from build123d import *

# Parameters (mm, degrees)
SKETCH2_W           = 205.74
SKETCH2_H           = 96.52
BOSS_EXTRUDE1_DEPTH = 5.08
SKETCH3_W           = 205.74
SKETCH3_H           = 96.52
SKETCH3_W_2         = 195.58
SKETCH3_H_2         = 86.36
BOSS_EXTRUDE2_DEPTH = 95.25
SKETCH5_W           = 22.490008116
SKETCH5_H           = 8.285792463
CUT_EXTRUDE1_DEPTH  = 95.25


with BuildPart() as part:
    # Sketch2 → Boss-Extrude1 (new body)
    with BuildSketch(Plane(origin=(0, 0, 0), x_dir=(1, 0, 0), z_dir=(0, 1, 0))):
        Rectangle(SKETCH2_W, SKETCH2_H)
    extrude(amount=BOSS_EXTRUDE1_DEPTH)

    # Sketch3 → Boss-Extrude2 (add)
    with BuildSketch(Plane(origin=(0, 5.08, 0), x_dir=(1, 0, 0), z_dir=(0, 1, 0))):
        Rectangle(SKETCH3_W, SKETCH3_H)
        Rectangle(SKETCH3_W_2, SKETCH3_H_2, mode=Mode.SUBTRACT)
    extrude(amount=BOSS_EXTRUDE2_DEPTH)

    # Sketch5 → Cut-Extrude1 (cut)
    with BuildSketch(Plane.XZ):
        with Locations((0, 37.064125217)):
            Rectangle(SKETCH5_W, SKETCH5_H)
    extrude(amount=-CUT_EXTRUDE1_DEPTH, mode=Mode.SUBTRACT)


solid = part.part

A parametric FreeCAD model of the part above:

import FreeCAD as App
import Part
import Sketcher

V = App.Vector
Q = App.Units.Quantity


def add_polygon(sketch, points):
    """Adds a closed chain of lines whose ends are joined by coincident constraints."""
    first, n = sketch.GeometryCount, len(points)
    for a, b in zip(points, points[1:] + points[:1]):
        sketch.addGeometry(Part.LineSegment(App.Vector(*a, 0), App.Vector(*b, 0)), False)
    for i in range(n):
        sketch.addConstraint(Sketcher.Constraint("Coincident", first + i, 2, first + (i + 1) % n, 1))

doc = App.newDocument("Part")
params = doc.addObject("Spreadsheet::Sheet", "Params")
for row, (alias, value) in enumerate([
    ("sketch1_width", "8.1 in"),
    ("sketch1_height", "3.8 in"),
    ("pad1_length", "0.2 in"),
    ("sketch2_width", "8.1 in"),
    ("sketch2_width2", "7.7 in"),
    ("sketch2_height", "3.8 in"),
    ("sketch2_height2", "3.4 in"),
    ("pad2_length", "3.75 in"),
    ("pocket1_length", "3.75 in"),
], start=1):
    params.set(f"A{row}", alias)
    params.set(f"B{row}", "=" + value)
    params.setAlias(f"B{row}", alias)

body = doc.addObject("PartDesign::Body", "Body")

# Sketch on XZ plane
sketch1 = body.newObject("Sketcher::SketchObject", "Sketch")
sketch1.AttachmentSupport = (doc.getObject("XZ_Plane"), [""])
sketch1.MapMode = "FlatFace"
add_polygon(sketch1, [(-103, -48), (-103, 48), (103, 48), (103, -48)])  # lines 0-3
sketch1.addConstraint([
    Sketcher.Constraint("Vertical", 0),
    Sketcher.Constraint("Horizontal", 1),
    Sketcher.Constraint("Vertical", 2),
    Sketcher.Constraint("Horizontal", 3),
    Sketcher.Constraint("Symmetric", 0, 2, 2, 2, -1, 1),
    Sketcher.Constraint("DistanceX", 1, 1, 1, 2, Q("8.1 in")),
    Sketcher.Constraint("DistanceY", 0, 1, 0, 2, Q("3.8 in")),
])
sketch1.setExpression("Constraints[9]", "Params.sketch1_width")
sketch1.setExpression("Constraints[10]", "Params.sketch1_height")
pad1 = body.newObject("PartDesign::Pad", "Pad")
pad1.Profile = sketch1
pad1.setExpression("Length", "Params.pad1_length")
pad1.Reversed = True

# Sketch on XZ plane
sketch2 = body.newObject("Sketcher::SketchObject", "Sketch001")
sketch2.AttachmentSupport = (doc.getObject("XZ_Plane"), [""])
sketch2.MapMode = "FlatFace"
sketch2.AttachmentOffset = App.Placement(V(0, 0, -0.2 * 25.4), App.Rotation())
add_polygon(sketch2, [(-103, -48), (-103, 48), (103, 48), (103, -48)])  # lines 0-3
add_polygon(sketch2, [(98, 43), (-98, 43), (-98, -43), (98, -43)])  # lines 4-7
sketch2.addConstraint([
    Sketcher.Constraint("Vertical", 0),
    Sketcher.Constraint("Horizontal", 1),
    Sketcher.Constraint("Vertical", 2),
    Sketcher.Constraint("Horizontal", 3),
    Sketcher.Constraint("Horizontal", 4),
    Sketcher.Constraint("Vertical", 5),
    Sketcher.Constraint("Horizontal", 6),
    Sketcher.Constraint("Vertical", 7),
    Sketcher.Constraint("Symmetric", 0, 2, 2, 2, -1, 1),
    Sketcher.Constraint("Symmetric", 4, 2, 6, 2, -1, 1),
    Sketcher.Constraint("DistanceX", 1, 1, 1, 2, Q("8.1 in")),
    Sketcher.Constraint("DistanceX", 4, 2, 4, 1, Q("7.7 in")),
    Sketcher.Constraint("DistanceY", 0, 1, 0, 2, Q("3.8 in")),
    Sketcher.Constraint("DistanceY", 5, 2, 5, 1, Q("3.4 in")),
])
sketch2.setExpression("Constraints[18]", "Params.sketch2_width")
sketch2.setExpression("Constraints[19]", "Params.sketch2_width2")
sketch2.setExpression("Constraints[20]", "Params.sketch2_height")
sketch2.setExpression("Constraints[21]", "Params.sketch2_height2")
pad2 = body.newObject("PartDesign::Pad", "Pad001")
pad2.Profile = sketch2
pad2.setExpression("Length", "Params.pad2_length")
pad2.Reversed = True

# Sketch on XZ plane
sketch3 = body.newObject("Sketcher::SketchObject", "Sketch002")
sketch3.AttachmentSupport = (doc.getObject("XZ_Plane"), [""])
sketch3.MapMode = "FlatFace"
add_polygon(sketch3, [(-11, 41), (-11, 33), (11, 33), (11, 41)])  # lines 0-3
sketch3.addConstraint([
    Sketcher.Constraint("Vertical", 0),
    Sketcher.Constraint("Horizontal", 1),
    Sketcher.Constraint("Vertical", 2),
    Sketcher.Constraint("Horizontal", 3),
    Sketcher.Constraint("DistanceX", 1, 1, 1, 2, 22.490008),
    Sketcher.Constraint("DistanceY", 0, 2, 0, 1, 8.285792),
    Sketcher.Constraint("DistanceY", -1, 1, 0, 2, 32.921229),
    Sketcher.Constraint("DistanceX", 0, 2, -1, 1, 11.245004),
])
pocket1 = body.newObject("PartDesign::Pocket", "Pocket")
pocket1.Profile = sketch3
pocket1.setExpression("Length", "Params.pocket1_length")

doc.recompute()
